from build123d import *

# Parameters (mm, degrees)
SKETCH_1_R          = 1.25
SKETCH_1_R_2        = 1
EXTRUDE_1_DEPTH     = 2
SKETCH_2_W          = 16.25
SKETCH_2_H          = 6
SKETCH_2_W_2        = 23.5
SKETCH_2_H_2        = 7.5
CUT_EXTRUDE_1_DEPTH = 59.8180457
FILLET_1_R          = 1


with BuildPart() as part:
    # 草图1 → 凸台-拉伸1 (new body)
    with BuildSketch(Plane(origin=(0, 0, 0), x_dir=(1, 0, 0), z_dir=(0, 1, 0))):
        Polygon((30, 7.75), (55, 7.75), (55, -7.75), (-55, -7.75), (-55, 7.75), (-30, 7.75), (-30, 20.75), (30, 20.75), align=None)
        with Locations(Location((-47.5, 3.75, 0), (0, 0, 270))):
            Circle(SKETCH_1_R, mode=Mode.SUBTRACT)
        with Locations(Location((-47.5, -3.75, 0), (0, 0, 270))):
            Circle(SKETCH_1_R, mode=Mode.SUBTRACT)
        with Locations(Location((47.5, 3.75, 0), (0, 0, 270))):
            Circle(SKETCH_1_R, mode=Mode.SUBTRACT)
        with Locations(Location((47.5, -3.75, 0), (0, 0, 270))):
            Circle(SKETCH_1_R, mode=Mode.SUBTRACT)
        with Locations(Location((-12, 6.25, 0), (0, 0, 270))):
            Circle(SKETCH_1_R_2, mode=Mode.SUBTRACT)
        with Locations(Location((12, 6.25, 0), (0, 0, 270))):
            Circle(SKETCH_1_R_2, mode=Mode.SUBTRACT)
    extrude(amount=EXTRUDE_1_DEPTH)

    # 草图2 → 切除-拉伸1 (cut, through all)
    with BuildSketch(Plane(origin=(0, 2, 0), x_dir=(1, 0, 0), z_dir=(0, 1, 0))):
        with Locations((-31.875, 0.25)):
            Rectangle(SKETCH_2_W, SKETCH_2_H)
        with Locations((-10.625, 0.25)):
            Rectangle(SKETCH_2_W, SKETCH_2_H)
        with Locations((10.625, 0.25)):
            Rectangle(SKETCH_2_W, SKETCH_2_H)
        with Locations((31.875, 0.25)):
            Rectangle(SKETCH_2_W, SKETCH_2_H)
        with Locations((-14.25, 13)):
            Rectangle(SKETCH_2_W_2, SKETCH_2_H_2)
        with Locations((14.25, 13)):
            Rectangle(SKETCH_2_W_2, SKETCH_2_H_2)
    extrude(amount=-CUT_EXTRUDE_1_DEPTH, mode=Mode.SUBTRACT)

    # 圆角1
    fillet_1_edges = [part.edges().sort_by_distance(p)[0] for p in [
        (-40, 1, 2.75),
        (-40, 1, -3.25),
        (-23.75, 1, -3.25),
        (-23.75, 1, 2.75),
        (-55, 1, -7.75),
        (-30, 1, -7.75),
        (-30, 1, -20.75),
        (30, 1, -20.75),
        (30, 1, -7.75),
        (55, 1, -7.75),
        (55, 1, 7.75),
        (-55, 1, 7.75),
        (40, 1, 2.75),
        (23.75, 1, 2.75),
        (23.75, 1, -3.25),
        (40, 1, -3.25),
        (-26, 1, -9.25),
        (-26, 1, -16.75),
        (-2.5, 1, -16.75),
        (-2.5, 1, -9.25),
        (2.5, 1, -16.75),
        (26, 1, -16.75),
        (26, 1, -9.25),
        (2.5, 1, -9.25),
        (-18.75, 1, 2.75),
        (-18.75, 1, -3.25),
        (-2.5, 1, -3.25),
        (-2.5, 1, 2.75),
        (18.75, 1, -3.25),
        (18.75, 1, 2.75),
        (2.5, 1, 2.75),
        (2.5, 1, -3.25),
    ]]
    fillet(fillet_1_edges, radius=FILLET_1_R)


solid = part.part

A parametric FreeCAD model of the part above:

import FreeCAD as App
import Part
import Sketcher
Q = App.Units.Quantity


def edges_at(feature, points):
    """Names of the edges that pass closest to the given points."""
    edges = feature.Shape.Edges
    near = lambda p: min(range(len(edges)), key=lambda i: edges[i].distToShape(Part.Vertex(*p))[0])
    return sorted({f"Edge{near(p) + 1}" for p in points})


def add_polygon(sketch, points):
    """Adds a closed chain of lines whose ends are joined by coincident constraints."""
    first, n = sketch.GeometryCount, len(points)
    for a, b in zip(points, points[1:] + points[:1]):
        sketch.addGeometry(Part.LineSegment(App.Vector(*a, 0), App.Vector(*b, 0)), False)
    for i in range(n):
        sketch.addConstraint(Sketcher.Constraint("Coincident", first + i, 2, first + (i + 1) % n, 1))

doc = App.newDocument("Part")
params = doc.addObject("Spreadsheet::Sheet", "Params")
for row, (alias, value) in enumerate([
    ("sketch1_diameter", "2 mm"),
    ("sketch1_diameter2", "2.5 mm"),
    ("sketch1_width", "25 mm"),
    ("sketch1_width2", "60 mm"),
    ("sketch1_height", "13 mm"),
    ("pad1_length", "2 mm"),
    ("sketch2_height", "6 mm"),
    ("sketch2_width", "23.5 mm"),
    ("sketch2_height2", "7.5 mm"),
    ("fillet_radius", "1 mm"),
], start=1):
    params.set(f"A{row}", alias)
    params.set(f"B{row}", "=" + value)
    params.setAlias(f"B{row}", alias)

body = doc.addObject("PartDesign::Body", "Body")

# Sketch on XZ plane
sketch1 = doc.addObject("Sketcher::SketchObject", "Sketch")
body.addObject(sketch1)
sketch1.AttachmentSupport = (doc.XZ_Plane, [""])
sketch1.MapMode = "FlatFace"
add_polygon(sketch1, [(55, -7.75), (30, -7.75), (30, -20.75), (-30, -20.75), (-30, -7.75), (-55, -7.75), (-55, 7.75), (55, 7.75)])  # lines 0-7
sketch1.addGeometry(Part.Circle(App.Vector(47.5, 3.75, 0), App.Vector(0, 0, 1), 1.25), False)  # 8
sketch1.addGeometry(Part.Circle(App.Vector(-47.5, 3.75, 0), App.Vector(0, 0, 1), 1.25), False)  # 9
sketch1.addGeometry(Part.Circle(App.Vector(47.5, -3.75, 0), App.Vector(0, 0, 1), 1.25), False)  # 10
sketch1.addGeometry(Part.Circle(App.Vector(12, -6.25, 0), App.Vector(0, 0, 1), 1), False)  # 11
sketch1.addGeometry(Part.Circle(App.Vector(-47.5, -3.75, 0), App.Vector(0, 0, 1), 1.25), False)  # 12
sketch1.addGeometry(Part.Circle(App.Vector(-12, -6.25, 0), App.Vector(0, 0, 1), 1), False)  # 13
sketch1.addConstraint(Sketcher.Constraint("Horizontal", 0))
sketch1.addConstraint(Sketcher.Constraint("Vertical", 1))
sketch1.addConstraint(Sketcher.Constraint("Horizontal", 2))
sketch1.addConstraint(Sketcher.Constraint("Vertical", 3))
sketch1.addConstraint(Sketcher.Constraint("Horizontal", 4))
sketch1.addConstraint(Sketcher.Constraint("Vertical", 5))
sketch1.addConstraint(Sketcher.Constraint("Horizontal", 6))
sketch1.addConstraint(Sketcher.Constraint("Vertical", 7))
sketch1.addConstraint(Sketcher.Constraint("Equal", 8, 9))
sketch1.addConstraint(Sketcher.Constraint("Equal", 9, 10))
sketch1.addConstraint(Sketcher.Constraint("Equal", 10, 12))
sketch1.addConstraint(Sketcher.Constraint("Equal", 11, 13))
sketch1.addConstraint(Sketcher.Constraint("Symmetric", 9, 3, 10, 3, -1, 1))
sketch1.addConstraint(Sketcher.Constraint("Symmetric", 8, 3, 12, 3, -1, 1))
sketch1.addConstraint(Sketcher.Constraint("Symmetric", 4, 2, 6, 2, -1, 1))
sketch1.addConstraint(Sketcher.Constraint("Symmetric", 8, 3, 9, 3, -2))
sketch1.addConstraint(Sketcher.Constraint("Symmetric", 11, 3, 13, 3, -2))
sketch1.addConstraint(Sketcher.Constraint("Symmetric", 0, 2, 3, 2, -2))
sketch1.addConstraint(Sketcher.Constraint("Diameter", 11, Q("2 mm")))
sketch1.addConstraint(Sketcher.Constraint("Diameter", 8, Q("2.5 mm")))
sketch1.addConstraint(Sketcher.Constraint("DistanceX", 0, 2, 0, 1, Q("25 mm")))
sketch1.addConstraint(Sketcher.Constraint("DistanceX", 2, 2, 2, 1, Q("60 mm")))
sketch1.addConstraint(Sketcher.Constraint("DistanceY", 1, 2, 1, 1, Q("13 mm")))
sketch1.addConstraint(Sketcher.Constraint("DistanceY", 5, 1, 5, 2, Q("15.5 mm")))
sketch1.addConstraint(Sketcher.Constraint("DistanceX", -1, 1, 11, 3, Q("12 mm")))
sketch1.addConstraint(Sketcher.Constraint("DistanceX", 9, 3, 8, 3, Q("95 mm")))
sketch1.addConstraint(Sketcher.Constraint("DistanceY", 11, 3, 8, 3, Q("10 mm")))
sketch1.addConstraint(Sketcher.Constraint("DistanceY", 0, 2, 10, 3, Q("4 mm")))
sketch1.setExpression("Constraints[26]", "Params.sketch1_diameter")
sketch1.setExpression("Constraints[27]", "Params.sketch1_diameter2")
sketch1.setExpression("Constraints[28]", "Params.sketch1_width")
sketch1.setExpression("Constraints[29]", "Params.sketch1_width2")
sketch1.setExpression("Constraints[30]", "Params.sketch1_height")
pad1 = doc.addObject("PartDesign::Pad", "Pad")
body.addObject(pad1)
pad1.Profile = sketch1
pad1.setExpression("Length", "Params.pad1_length")
pad1.Reversed = True

# Sketch on XZ plane
sketch2 = doc.addObject("Sketcher::SketchObject", "Sketch001")
body.addObject(sketch2)
sketch2.AttachmentSupport = (doc.XZ_Plane, [""])
sketch2.MapMode = "FlatFace"
sketch2.AttachmentOffset = App.Placement(App.Vector(0, 0, -2), App.Rotation())
add_polygon(sketch2, [(-40, -3.25), (-40, 2.75), (-23.75, 2.75), (-23.75, -3.25)])  # lines 0-3
add_polygon(sketch2, [(-18.75, -3.25), (-18.75, 2.75), (-2.5, 2.75), (-2.5, -3.25)])  # lines 4-7
add_polygon(sketch2, [(2.5, -3.25), (2.5, 2.75), (18.75, 2.75), (18.75, -3.25)])  # lines 8-11
add_polygon(sketch2, [(23.75, -3.25), (23.75, 2.75), (40, 2.75), (40, -3.25)])  # lines 12-15
add_polygon(sketch2, [(-26, -16.75), (-26, -9.25), (-2.5, -9.25), (-2.5, -16.75)])  # lines 16-19
add_polygon(sketch2, [(2.5, -16.75), (2.5, -9.25), (26, -9.25), (26, -16.75)])  # lines 20-23
sketch2.addConstraint(Sketcher.Constraint("Vertical", 0))
sketch2.addConstraint(Sketcher.Constraint("Horizontal", 1))
sketch2.addConstraint(Sketcher.Constraint("Vertical", 2))
sketch2.addConstraint(Sketcher.Constraint("Horizontal", 3))
sketch2.addConstraint(Sketcher.Constraint("Vertical", 4))
sketch2.addConstraint(Sketcher.Constraint("Horizontal", 5))
sketch2.addConstraint(Sketcher.Constraint("Vertical", 6))
sketch2.addConstraint(Sketcher.Constraint("Horizontal", 7))
sketch2.addConstraint(Sketcher.Constraint("Vertical", 8))
sketch2.addConstraint(Sketcher.Constraint("Horizontal", 9))
sketch2.addConstraint(Sketcher.Constraint("Vertical", 10))
sketch2.addConstraint(Sketcher.Constraint("Horizontal", 11))
sketch2.addConstraint(Sketcher.Constraint("Vertical", 12))
sketch2.addConstraint(Sketcher.Constraint("Horizontal", 13))
sketch2.addConstraint(Sketcher.Constraint("Vertical", 14))
sketch2.addConstraint(Sketcher.Constraint("Horizontal", 15))
sketch2.addConstraint(Sketcher.Constraint("Vertical", 16))
sketch2.addConstraint(Sketcher.Constraint("Horizontal", 17))
sketch2.addConstraint(Sketcher.Constraint("Vertical", 18))
sketch2.addConstraint(Sketcher.Constraint("Horizontal", 19))
sketch2.addConstraint(Sketcher.Constraint("Vertical", 20))
sketch2.addConstraint(Sketcher.Constraint("Horizontal", 21))
sketch2.addConstraint(Sketcher.Constraint("Vertical", 22))
sketch2.addConstraint(Sketcher.Constraint("Horizontal", 23))
sketch2.addConstraint(Sketcher.Constraint("Symmetric", 5, 2, 8, 2, -2))
sketch2.addConstraint(Sketcher.Constraint("Symmetric", 7, 2, 10, 2, -2))
sketch2.addConstraint(Sketcher.Constraint("Symmetric", 1, 2, 12, 2, -2))
sketch2.addConstraint(Sketcher.Constraint("Symmetric", 3, 2, 14, 2, -2))
sketch2.addConstraint(Sketcher.Constraint("Symmetric", 17, 2, 20, 2, -2))
sketch2.addConstraint(Sketcher.Constraint("Symmetric", 19, 2, 22, 2, -2))
sketch2.addConstraint(Sketcher.Constraint("Horizontal", 1, 2, 4, 2))
sketch2.addConstraint(Sketcher.Constraint("Horizontal", 3, 2, 6, 2))
sketch2.addConstraint(Sketcher.Constraint("Vertical", 6, 2, 17, 2))
sketch2.addConstraint(Sketcher.Constraint("Equal", 3, 5))
sketch2.addConstraint(Sketcher.Constraint("DistanceY", 0, 1, 0, 2, Q("6 mm")))
sketch2.addConstraint(Sketcher.Constraint("DistanceX", 17, 1, 17, 2, Q("23.5 mm")))
sketch2.addConstraint(Sketcher.Constraint("DistanceY", 16, 1, 16, 2, Q("7.5 mm")))
sketch2.addConstraint(Sketcher.Constraint("DistanceX", 0, 2, -1, 1, Q("40 mm")))
sketch2.addConstraint(Sketcher.Constraint("DistanceX", 16, 2, -1, 1, Q("26 mm")))
sketch2.addConstraint(Sketcher.Constraint("DistanceX", 1, 2, 4, 2, Q("5 mm")))
sketch2.addConstraint(Sketcher.Constraint("DistanceY", 16, 2, 2, 2, Q("6 mm")))
sketch2.addConstraint(Sketcher.Constraint("DistanceY", -1, 1, 0, 2, Q("2.75 mm")))
sketch2.setExpression("Constraints[58]", "Params.sketch2_height")
sketch2.setExpression("Constraints[59]", "Params.sketch2_width")
sketch2.setExpression("Constraints[60]", "Params.sketch2_height2")
pocket1 = doc.addObject("PartDesign::Pocket", "Pocket")
body.addObject(pocket1)
pocket1.Profile = sketch2
pocket1.Type = "ThroughAll"
pocket1.Reversed = True
doc.recompute()

fillet = doc.addObject("PartDesign::Fillet", "Fillet")
body.addObject(fillet)
fillet.Base = (pocket1, edges_at(pocket1, [
    (-40, 1, 2.75),
    (-40, 1, -3.25),
    (-23.75, 1, -3.25),
    (-23.75, 1, 2.75),
    (-55, 1, -7.75),
    (-30, 1, -7.75),
    (-30, 1, -20.75),
    (30, 1, -20.75),
    (30, 1, -7.75),
    (55, 1, -7.75),
    (55, 1, 7.75),
    (-55, 1, 7.75),
    (40, 1, 2.75),
    (23.75, 1, 2.75),
    (23.75, 1, -3.25),
    (40, 1, -3.25),
    (-26, 1, -9.25),
    (-26, 1, -16.75),
    (-2.5, 1, -16.75),
    (-2.5, 1, -9.25),
    (2.5, 1, -16.75),
    (26, 1, -16.75),
    (26, 1, -9.25),
    (2.5, 1, -9.25),
    (-18.75, 1, 2.75),
    (-18.75, 1, -3.25),
    (-2.5, 1, -3.25),
    (-2.5, 1, 2.75),
    (18.75, 1, -3.25),
    (18.75, 1, 2.75),
    (2.5, 1, 2.75),
    (2.5, 1, -3.25),
]))
fillet.setExpression("Radius", "Params.fillet_radius")

doc.recompute()
